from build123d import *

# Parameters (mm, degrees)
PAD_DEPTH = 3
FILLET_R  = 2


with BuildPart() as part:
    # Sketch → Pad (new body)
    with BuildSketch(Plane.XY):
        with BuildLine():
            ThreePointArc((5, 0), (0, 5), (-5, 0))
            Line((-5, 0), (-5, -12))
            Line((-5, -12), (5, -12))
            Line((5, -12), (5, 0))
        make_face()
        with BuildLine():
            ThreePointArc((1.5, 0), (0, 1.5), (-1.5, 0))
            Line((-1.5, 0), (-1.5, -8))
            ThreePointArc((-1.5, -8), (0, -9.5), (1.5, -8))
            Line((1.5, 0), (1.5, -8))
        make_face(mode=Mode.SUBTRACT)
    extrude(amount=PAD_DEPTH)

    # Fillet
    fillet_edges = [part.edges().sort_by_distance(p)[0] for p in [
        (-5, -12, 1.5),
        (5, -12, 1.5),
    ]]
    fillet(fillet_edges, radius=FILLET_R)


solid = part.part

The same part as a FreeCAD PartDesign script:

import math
import FreeCAD as App
import Part
import Sketcher
from FreeCAD import Vector
Q = App.Units.Quantity


def edges_at(feature, points):
    """Names of the edges that pass closest to the given points."""
    edges = feature.Shape.Edges
    near = lambda p: min(range(len(edges)), key=lambda i: edges[i].distToShape(Part.Vertex(*p))[0])
    return sorted({f"Edge{near(p) + 1}" for p in points})

doc = App.newDocument("Part")
body = doc.addObject("PartDesign::Body", "Body")

# Sketch on XY plane
sketch1 = doc.addObject("Sketcher::SketchObject", "Sketch")
body.addObject(sketch1)
sketch1.AttachmentSupport = (doc.XY_Plane, [""])
sketch1.MapMode = "FlatFace"
sketch1.addGeometry(Part.ArcOfCircle(Part.Circle(Vector(0, 0, 0), Vector(0, 0, 1), 5), math.radians(0), math.radians(180)), False)
sketch1.addGeometry(Part.LineSegment(Vector(-5, 0, 0), Vector(-5, -12, 0)), False)
sketch1.addGeometry(Part.LineSegment(Vector(-5, -12, 0), Vector(5, -12, 0)), False)
sketch1.addGeometry(Part.LineSegment(Vector(5, -12, 0), Vector(5, 0, 0)), False)
sketch1.addGeometry(Part.ArcOfCircle(Part.Circle(Vector(0, 0, 0), Vector(0, 0, 1), 1.5), math.radians(0), math.radians(180)), False)
sketch1.addGeometry(Part.LineSegment(Vector(1.5, 0, 0), Vector(1.5, -8, 0)), False)
sketch1.addGeometry(Part.ArcOfCircle(Part.Circle(Vector(0, -8, 0), Vector(0, 0, 1), 1.5), math.radians(180), math.radians(360)), False)
sketch1.addGeometry(Part.LineSegment(Vector(-1.5, -8, 0), Vector(-1.5, 0, 0)), False)
sketch1.addConstraint(Sketcher.Constraint("Tangent", 0, 2, 1, 1))
sketch1.addConstraint(Sketcher.Constraint("Coincident", 1, 2, 2, 1))
sketch1.addConstraint(Sketcher.Constraint("Coincident", 2, 2, 3, 1))
sketch1.addConstraint(Sketcher.Constraint("Tangent", 3, 2, 0, 1))
sketch1.addConstraint(Sketcher.Constraint("Tangent", 4, 1, 5, 1))
sketch1.addConstraint(Sketcher.Constraint("Tangent", 5, 2, 6, 2))
sketch1.addConstraint(Sketcher.Constraint("Tangent", 6, 1, 7, 1))
sketch1.addConstraint(Sketcher.Constraint("Tangent", 7, 2, 4, 2))
sketch1.addConstraint(Sketcher.Constraint("Vertical", 1))
sketch1.addConstraint(Sketcher.Constraint("Horizontal", 2))
sketch1.addConstraint(Sketcher.Constraint("Vertical", 3))
sketch1.addConstraint(Sketcher.Constraint("Vertical", 5))
sketch1.addConstraint(Sketcher.Constraint("Vertical", 7))
sketch1.addConstraint(Sketcher.Constraint("Coincident", 0, 3, -1, 1))
sketch1.addConstraint(Sketcher.Constraint("Coincident", 4, 3, -1, 1))
sketch1.addConstraint(Sketcher.Constraint("Radius", 0, Q("5 mm")))
sketch1.addConstraint(Sketcher.Constraint("Radius", 4, Q("1.5 mm")))
sketch1.addConstraint(Sketcher.Constraint("DistanceY", 1, 2, 1, 1, Q("12 mm")))
sketch1.addConstraint(Sketcher.Constraint("DistanceY", 5, 2, 5, 1, Q("8 mm")))
pad1 = doc.addObject("PartDesign::Pad", "Pad")
body.addObject(pad1)
pad1.Profile = sketch1
pad1.Length = 3
doc.recompute()

fillet = doc.addObject("PartDesign::Fillet", "Fillet")
body.addObject(fillet)
fillet.Base = (pad1, edges_at(pad1, [(-5, -12, 1.5), (5, -12, 1.5)]))
fillet.Radius = 2

doc.recompute()
